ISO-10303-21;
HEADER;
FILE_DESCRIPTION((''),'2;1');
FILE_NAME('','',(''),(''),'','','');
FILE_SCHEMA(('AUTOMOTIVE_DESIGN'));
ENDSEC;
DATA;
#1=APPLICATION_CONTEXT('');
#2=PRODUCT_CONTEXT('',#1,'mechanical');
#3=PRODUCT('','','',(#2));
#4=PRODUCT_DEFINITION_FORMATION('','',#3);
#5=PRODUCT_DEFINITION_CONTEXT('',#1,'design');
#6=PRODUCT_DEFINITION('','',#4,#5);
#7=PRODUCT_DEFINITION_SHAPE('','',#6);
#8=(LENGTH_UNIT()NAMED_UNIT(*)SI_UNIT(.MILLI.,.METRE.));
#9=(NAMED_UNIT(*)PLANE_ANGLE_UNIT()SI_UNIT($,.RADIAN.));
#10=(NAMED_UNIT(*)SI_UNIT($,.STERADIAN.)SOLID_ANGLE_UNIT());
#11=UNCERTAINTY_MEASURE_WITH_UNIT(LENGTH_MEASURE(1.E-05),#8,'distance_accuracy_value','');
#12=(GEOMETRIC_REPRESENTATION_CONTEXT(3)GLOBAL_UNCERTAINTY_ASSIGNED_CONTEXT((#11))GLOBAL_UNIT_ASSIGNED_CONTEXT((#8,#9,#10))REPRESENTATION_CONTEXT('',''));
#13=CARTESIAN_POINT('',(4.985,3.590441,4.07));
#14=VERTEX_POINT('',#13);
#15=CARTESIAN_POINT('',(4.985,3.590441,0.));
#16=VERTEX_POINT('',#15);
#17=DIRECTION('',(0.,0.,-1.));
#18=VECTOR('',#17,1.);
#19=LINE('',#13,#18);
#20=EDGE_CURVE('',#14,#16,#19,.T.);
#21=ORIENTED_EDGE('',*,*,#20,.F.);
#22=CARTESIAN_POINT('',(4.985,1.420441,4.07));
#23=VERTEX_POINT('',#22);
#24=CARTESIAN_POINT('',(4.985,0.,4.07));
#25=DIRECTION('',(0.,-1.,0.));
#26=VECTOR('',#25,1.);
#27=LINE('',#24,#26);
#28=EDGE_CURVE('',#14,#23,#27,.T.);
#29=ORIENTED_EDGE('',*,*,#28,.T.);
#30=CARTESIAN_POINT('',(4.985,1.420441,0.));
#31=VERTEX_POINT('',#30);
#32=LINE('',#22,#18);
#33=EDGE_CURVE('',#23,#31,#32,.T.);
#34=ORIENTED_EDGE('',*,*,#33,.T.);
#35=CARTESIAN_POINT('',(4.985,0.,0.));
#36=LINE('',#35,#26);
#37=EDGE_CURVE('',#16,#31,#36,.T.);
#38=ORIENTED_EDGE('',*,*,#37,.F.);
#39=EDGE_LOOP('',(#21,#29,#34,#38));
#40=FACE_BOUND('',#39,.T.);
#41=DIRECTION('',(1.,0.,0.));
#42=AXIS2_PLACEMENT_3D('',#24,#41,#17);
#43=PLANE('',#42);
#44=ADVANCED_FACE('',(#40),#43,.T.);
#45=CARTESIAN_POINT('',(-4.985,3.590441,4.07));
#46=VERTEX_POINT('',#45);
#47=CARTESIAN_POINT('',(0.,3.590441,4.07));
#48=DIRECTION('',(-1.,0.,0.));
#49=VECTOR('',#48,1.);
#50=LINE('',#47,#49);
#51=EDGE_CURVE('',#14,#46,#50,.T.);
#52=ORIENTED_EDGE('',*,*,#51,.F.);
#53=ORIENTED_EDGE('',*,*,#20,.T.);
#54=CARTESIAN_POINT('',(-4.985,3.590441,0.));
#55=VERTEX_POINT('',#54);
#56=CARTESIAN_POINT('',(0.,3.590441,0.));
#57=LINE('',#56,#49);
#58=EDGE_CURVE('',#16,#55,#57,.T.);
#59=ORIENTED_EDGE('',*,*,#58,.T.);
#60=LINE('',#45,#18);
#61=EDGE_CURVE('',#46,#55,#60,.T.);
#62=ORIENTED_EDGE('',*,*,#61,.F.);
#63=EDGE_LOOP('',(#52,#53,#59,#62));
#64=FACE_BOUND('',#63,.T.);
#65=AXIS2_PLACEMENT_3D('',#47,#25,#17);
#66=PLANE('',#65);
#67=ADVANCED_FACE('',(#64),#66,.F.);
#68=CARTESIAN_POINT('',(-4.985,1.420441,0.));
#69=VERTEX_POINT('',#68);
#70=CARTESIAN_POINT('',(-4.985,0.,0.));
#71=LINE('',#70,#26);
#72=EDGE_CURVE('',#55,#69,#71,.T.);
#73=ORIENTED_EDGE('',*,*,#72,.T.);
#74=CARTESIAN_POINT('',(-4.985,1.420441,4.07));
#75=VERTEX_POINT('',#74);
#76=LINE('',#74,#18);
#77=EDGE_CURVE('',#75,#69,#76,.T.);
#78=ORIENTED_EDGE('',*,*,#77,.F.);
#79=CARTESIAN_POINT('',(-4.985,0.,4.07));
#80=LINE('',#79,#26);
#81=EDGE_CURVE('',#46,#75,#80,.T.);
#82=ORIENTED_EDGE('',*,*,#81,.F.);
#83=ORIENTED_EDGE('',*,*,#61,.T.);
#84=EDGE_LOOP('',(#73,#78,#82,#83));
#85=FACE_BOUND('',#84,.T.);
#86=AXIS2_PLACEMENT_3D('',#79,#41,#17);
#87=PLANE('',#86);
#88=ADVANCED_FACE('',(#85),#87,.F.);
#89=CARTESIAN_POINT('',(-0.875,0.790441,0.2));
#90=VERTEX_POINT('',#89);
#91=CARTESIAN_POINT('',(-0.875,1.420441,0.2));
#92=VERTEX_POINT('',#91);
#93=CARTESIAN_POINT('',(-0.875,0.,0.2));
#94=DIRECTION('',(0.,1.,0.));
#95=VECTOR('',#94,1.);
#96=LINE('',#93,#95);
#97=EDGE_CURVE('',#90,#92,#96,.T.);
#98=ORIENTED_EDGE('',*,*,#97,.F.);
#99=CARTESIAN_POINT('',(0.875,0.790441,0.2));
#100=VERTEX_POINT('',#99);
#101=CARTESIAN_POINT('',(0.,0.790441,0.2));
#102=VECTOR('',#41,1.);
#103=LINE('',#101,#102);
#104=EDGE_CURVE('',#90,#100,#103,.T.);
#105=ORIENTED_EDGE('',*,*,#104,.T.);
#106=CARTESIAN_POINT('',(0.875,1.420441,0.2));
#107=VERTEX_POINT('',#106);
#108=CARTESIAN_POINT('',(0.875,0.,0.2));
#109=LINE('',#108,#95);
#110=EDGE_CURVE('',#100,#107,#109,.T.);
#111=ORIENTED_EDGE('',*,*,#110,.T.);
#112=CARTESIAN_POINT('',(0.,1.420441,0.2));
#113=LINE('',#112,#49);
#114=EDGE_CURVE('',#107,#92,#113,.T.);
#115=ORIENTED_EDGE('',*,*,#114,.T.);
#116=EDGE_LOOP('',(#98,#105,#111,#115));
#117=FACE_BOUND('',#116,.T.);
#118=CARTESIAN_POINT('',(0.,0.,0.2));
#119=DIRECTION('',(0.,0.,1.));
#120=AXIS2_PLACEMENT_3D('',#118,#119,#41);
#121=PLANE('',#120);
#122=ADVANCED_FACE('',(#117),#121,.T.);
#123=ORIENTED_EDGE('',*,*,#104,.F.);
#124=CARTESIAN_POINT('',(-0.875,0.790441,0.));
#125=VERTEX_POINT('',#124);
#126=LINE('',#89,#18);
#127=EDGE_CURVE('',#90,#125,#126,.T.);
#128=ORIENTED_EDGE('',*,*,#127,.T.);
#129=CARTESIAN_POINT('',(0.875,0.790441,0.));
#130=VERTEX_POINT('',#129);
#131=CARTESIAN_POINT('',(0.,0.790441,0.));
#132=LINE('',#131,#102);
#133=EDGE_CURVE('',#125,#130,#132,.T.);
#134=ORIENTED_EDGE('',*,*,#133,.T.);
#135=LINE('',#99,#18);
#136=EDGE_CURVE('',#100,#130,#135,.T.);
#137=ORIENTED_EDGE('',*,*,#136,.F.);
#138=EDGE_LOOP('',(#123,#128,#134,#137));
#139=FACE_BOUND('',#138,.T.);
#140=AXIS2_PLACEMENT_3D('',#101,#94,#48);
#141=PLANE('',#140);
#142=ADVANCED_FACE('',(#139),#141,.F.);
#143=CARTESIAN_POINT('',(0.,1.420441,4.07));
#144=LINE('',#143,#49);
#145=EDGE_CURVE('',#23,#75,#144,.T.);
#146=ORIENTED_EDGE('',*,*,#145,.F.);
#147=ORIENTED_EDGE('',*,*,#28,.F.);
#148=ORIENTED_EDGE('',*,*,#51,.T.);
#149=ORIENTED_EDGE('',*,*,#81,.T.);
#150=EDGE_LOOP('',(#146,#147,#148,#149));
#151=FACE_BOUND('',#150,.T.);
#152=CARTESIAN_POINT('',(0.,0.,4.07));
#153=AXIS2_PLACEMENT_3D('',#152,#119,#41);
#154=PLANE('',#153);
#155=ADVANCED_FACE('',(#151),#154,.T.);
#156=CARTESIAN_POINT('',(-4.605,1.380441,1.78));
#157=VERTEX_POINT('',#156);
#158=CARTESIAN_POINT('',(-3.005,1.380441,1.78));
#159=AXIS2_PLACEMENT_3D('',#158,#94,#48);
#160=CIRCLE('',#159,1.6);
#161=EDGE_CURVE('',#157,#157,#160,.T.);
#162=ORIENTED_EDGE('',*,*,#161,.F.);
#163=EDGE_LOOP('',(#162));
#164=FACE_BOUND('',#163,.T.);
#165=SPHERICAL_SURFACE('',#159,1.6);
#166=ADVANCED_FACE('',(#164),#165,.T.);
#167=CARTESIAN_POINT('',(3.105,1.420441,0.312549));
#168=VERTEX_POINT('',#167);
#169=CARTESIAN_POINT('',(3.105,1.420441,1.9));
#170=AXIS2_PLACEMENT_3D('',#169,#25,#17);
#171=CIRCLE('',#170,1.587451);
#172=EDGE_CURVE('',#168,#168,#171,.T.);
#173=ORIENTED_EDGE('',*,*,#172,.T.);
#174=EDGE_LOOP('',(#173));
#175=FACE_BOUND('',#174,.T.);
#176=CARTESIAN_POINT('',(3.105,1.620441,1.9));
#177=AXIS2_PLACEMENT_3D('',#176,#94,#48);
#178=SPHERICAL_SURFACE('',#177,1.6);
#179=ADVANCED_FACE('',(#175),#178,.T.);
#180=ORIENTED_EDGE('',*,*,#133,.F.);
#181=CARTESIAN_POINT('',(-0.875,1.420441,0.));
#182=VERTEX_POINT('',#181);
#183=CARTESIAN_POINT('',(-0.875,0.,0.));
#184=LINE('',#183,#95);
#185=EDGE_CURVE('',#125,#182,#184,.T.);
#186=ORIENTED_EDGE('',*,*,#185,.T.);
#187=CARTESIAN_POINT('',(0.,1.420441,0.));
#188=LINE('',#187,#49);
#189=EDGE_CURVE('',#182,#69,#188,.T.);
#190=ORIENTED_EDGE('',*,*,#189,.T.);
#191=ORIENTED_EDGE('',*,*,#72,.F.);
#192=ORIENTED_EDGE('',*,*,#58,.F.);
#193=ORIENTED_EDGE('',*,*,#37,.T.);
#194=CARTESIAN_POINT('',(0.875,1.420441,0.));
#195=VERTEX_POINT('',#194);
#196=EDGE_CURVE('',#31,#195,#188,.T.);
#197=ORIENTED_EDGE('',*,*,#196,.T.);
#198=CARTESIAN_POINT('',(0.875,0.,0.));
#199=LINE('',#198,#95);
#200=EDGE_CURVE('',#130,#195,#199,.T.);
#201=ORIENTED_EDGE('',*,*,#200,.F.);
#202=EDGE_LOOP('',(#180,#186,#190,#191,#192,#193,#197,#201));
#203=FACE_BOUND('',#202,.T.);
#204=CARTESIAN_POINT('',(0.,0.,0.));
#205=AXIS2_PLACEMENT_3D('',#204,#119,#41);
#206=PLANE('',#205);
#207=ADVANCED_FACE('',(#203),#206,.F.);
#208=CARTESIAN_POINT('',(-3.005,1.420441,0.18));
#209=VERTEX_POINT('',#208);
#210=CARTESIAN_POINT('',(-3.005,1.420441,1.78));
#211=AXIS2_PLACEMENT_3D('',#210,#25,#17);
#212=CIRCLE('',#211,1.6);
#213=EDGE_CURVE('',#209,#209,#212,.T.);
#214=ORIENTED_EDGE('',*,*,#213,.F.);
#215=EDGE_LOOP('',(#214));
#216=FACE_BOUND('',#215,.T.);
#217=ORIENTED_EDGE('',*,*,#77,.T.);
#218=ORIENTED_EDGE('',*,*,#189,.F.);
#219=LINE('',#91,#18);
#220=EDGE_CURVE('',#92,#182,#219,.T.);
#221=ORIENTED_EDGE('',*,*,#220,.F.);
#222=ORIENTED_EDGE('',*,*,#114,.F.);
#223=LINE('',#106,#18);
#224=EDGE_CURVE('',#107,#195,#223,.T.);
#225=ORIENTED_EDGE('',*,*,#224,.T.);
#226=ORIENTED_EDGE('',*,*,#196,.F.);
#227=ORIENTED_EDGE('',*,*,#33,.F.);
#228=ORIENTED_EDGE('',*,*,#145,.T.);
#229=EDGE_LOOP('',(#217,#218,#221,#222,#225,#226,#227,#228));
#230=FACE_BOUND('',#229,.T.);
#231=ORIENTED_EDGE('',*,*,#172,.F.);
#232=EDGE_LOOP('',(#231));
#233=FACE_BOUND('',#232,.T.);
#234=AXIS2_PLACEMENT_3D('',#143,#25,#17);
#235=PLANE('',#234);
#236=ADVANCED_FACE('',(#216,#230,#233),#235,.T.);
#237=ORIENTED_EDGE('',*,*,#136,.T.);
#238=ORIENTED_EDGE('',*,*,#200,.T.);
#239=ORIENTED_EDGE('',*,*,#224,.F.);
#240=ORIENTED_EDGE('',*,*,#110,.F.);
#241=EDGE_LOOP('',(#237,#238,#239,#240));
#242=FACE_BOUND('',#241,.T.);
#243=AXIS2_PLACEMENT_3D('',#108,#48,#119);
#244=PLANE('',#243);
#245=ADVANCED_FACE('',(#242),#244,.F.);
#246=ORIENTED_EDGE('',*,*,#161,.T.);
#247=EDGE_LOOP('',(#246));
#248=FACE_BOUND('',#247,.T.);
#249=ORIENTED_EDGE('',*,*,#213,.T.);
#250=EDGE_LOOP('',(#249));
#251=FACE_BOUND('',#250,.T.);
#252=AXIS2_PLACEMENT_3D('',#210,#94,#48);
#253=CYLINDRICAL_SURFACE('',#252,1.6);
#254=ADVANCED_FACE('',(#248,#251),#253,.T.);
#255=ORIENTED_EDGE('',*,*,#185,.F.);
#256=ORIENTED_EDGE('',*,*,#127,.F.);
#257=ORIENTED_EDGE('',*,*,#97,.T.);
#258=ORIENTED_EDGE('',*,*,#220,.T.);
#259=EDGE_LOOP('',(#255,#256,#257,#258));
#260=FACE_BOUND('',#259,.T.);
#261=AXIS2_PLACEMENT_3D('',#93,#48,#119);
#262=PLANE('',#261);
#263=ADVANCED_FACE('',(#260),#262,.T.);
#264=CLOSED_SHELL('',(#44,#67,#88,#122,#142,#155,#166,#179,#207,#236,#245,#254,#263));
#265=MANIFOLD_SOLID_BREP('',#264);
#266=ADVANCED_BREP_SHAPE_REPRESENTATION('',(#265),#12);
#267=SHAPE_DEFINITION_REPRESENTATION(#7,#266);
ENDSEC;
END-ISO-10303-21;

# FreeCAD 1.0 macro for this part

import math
import FreeCAD as App
import Part
import Sketcher
from FreeCAD import Vector
Q = App.Units.Quantity

doc = App.newDocument("Part")
params = doc.addObject("Spreadsheet::Sheet", "Params")
for row, (alias, value) in enumerate([
    ("sketch1_width", "9.97 mm"),
    ("sketch1_height", "2.17 mm"),
    ("pad1_length", "4.07 mm"),
    ("sketch2_width", "1.75 mm"),
    ("sketch2_height", "0.63 mm"),
    ("pad2_length", "0.2 mm"),
    ("sketch3_radius", "1.6 mm"),
    ("sketch3_width", "1.6 mm"),
    ("sketch3_height", "0.04 mm"),
    ("revolution_angle", "360 deg"),
    ("sketch4_radius", "1.6 mm"),
    ("revolution2_angle", "360 deg"),
], start=1):
    params.set(f"A{row}", alias)
    params.set(f"B{row}", "=" + value)
    params.setAlias(f"B{row}", alias)

body = doc.addObject("PartDesign::Body", "Body")

# Sketch on XY plane
sketch1 = body.newObject("Sketcher::SketchObject", "Sketch")
sketch1.AttachmentSupport = (doc.getObject("XY_Plane"), [""])
sketch1.MapMode = "FlatFace"
sketch1.addGeometry([
    Part.LineSegment(Vector(-4.985, 3.590441, 0), Vector(-4.985, 1.420441, 0)),
    Part.LineSegment(Vector(-4.985, 1.420441, 0), Vector(4.985, 1.420441, 0)),
    Part.LineSegment(Vector(4.985, 1.420441, 0), Vector(4.985, 3.590441, 0)),
    Part.LineSegment(Vector(4.985, 3.590441, 0), Vector(-4.985, 3.590441, 0)),
], False)
sketch1.addConstraint([
    Sketcher.Constraint("Coincident", 0, 2, 1, 1),
    Sketcher.Constraint("Coincident", 1, 2, 2, 1),
    Sketcher.Constraint("Coincident", 2, 2, 3, 1),
    Sketcher.Constraint("Coincident", 3, 2, 0, 1),
    Sketcher.Constraint("Vertical", 0),
    Sketcher.Constraint("Horizontal", 1),
    Sketcher.Constraint("Vertical", 2),
    Sketcher.Constraint("Horizontal", 3),
    Sketcher.Constraint("DistanceX", 1, 1, 1, 2, Q("9.97 mm")),
    Sketcher.Constraint("DistanceY", 0, 2, 0, 1, Q("2.17 mm")),
    Sketcher.Constraint("DistanceX", 0, 2, -1, 1, Q("4.985 mm")),
    Sketcher.Constraint("DistanceY", -1, 1, 0, 2, Q("1.420441 mm")),
])
sketch1.setExpression("Constraints[8]", "Params.sketch1_width")
sketch1.setExpression("Constraints[9]", "Params.sketch1_height")
pad1 = body.newObject("PartDesign::Pad", "Pad")
pad1.Profile = sketch1
pad1.setExpression("Length", "Params.pad1_length")

# Sketch on XY plane
sketch2 = body.newObject("Sketcher::SketchObject", "Sketch001")
sketch2.AttachmentSupport = (doc.getObject("XY_Plane"), [""])
sketch2.MapMode = "FlatFace"
sketch2.addGeometry([
    Part.LineSegment(Vector(-0.875, 1.420441, 0), Vector(-0.875, 0.790441, 0)),
    Part.LineSegment(Vector(-0.875, 0.790441, 0), Vector(0.875, 0.790441, 0)),
    Part.LineSegment(Vector(0.875, 0.790441, 0), Vector(0.875, 1.420441, 0)),
    Part.LineSegment(Vector(0.875, 1.420441, 0), Vector(-0.875, 1.420441, 0)),
], False)
sketch2.addConstraint([
    Sketcher.Constraint("Coincident", 0, 2, 1, 1),
    Sketcher.Constraint("Coincident", 1, 2, 2, 1),
    Sketcher.Constraint("Coincident", 2, 2, 3, 1),
    Sketcher.Constraint("Coincident", 3, 2, 0, 1),
    Sketcher.Constraint("Vertical", 0),
    Sketcher.Constraint("Horizontal", 1),
    Sketcher.Constraint("Vertical", 2),
    Sketcher.Constraint("Horizontal", 3),
    Sketcher.Constraint("DistanceX", 1, 1, 1, 2, Q("1.75 mm")),
    Sketcher.Constraint("DistanceY", 0, 2, 0, 1, Q("0.63 mm")),
    Sketcher.Constraint("DistanceX", 0, 2, -1, 1, Q("0.875 mm")),
    Sketcher.Constraint("DistanceY", -1, 1, 0, 2, Q("0.790441 mm")),
])
sketch2.setExpression("Constraints[8]", "Params.sketch2_width")
sketch2.setExpression("Constraints[9]", "Params.sketch2_height")
pad2 = body.newObject("PartDesign::Pad", "Pad001")
pad2.Profile = sketch2
pad2.setExpression("Length", "Params.pad2_length")

# Sketch on XY plane
sketch3 = body.newObject("Sketcher::SketchObject", "Sketch002")
sketch3.AttachmentSupport = (doc.getObject("XY_Plane"), [""])
sketch3.MapMode = "FlatFace"
sketch3.AttachmentOffset = App.Placement(Vector(0, 0, 1.78), App.Rotation())
sketch3.addGeometry([
    Part.LineSegment(Vector(-3.005, 1.420441, 0), Vector(-4.605, 1.420441, 0)),
    Part.LineSegment(Vector(-4.605, 1.420441, 0), Vector(-4.605, 1.380441, 0)),
    Part.ArcOfCircle(Part.Circle(Vector(-3.005, 1.380441, 0), Vector(0, 0, 1), 1.6), math.radians(180), math.radians(270)),
    Part.LineSegment(Vector(-3.005, -0.219559, 0), Vector(-3.005, 1.420441, 0)),
], False)
sketch3.addGeometry(Part.LineSegment(Vector(-3.005, 1.420441, 0), Vector(-3.005, -0.219559, 0)), True)  # axis
sketch3.addConstraint([
    Sketcher.Constraint("Coincident", 0, 2, 1, 1),
    Sketcher.Constraint("Tangent", 1, 2, 2, 1),
    Sketcher.Constraint("Coincident", 2, 2, 3, 1),
    Sketcher.Constraint("Coincident", 3, 2, 0, 1),
    Sketcher.Constraint("Horizontal", 0),
    Sketcher.Constraint("Vertical", 1),
    Sketcher.Constraint("Vertical", 3),
    Sketcher.Constraint("Vertical", 4),
    Sketcher.Constraint("Coincident", 4, 1, 3, 2),
    Sketcher.Constraint("Equal", 3, 4),
    Sketcher.Constraint("Radius", 2, Q("1.6 mm")),
    Sketcher.Constraint("DistanceX", 0, 2, 0, 1, Q("1.6 mm")),
    Sketcher.Constraint("DistanceY", 1, 2, 1, 1, Q("0.04 mm")),
    Sketcher.Constraint("DistanceX", 2, 3, -1, 1, Q("3.005 mm")),
    Sketcher.Constraint("DistanceY", -1, 1, 2, 3, Q("1.380441 mm")),
])
sketch3.setExpression("Constraints[10]", "Params.sketch3_radius")
sketch3.setExpression("Constraints[11]", "Params.sketch3_width")
sketch3.setExpression("Constraints[12]", "Params.sketch3_height")
revolution = body.newObject("PartDesign::Revolution", "Revolution")
revolution.Profile = sketch3
revolution.ReferenceAxis = (sketch3, ["Axis0"])
revolution.setExpression("Angle", "Params.revolution_angle")

# Sketch on XY plane
sketch4 = body.newObject("Sketcher::SketchObject", "Sketch003")
sketch4.AttachmentSupport = (doc.getObject("XY_Plane"), [""])
sketch4.MapMode = "FlatFace"
sketch4.AttachmentOffset = App.Placement(Vector(0, 0, 1.9), App.Rotation())
sketch4.addGeometry([
    Part.ArcOfCircle(Part.Circle(Vector(3.105, 1.620441, 0), Vector(0, 0, 1), 1.6), math.radians(-90), math.radians(0)),
    Part.LineSegment(Vector(4.705, 1.620441, 0), Vector(3.105, 1.620441, 0)),
    Part.LineSegment(Vector(3.105, 1.620441, 0), Vector(3.105, 0.020441, 0)),
], False)
sketch4.addGeometry(Part.LineSegment(Vector(3.105, 1.620441, 0), Vector(3.105, 0.020441, 0)), True)  # axis
sketch4.addConstraint([
    Sketcher.Constraint("Coincident", 0, 2, 1, 1),
    Sketcher.Constraint("Coincident", 1, 2, 2, 1),
    Sketcher.Constraint("Coincident", 2, 2, 0, 1),
    Sketcher.Constraint("Horizontal", 1),
    Sketcher.Constraint("Vertical", 2),
    Sketcher.Constraint("Vertical", 3),
    Sketcher.Constraint("Coincident", 1, 2, 0, 3),
    Sketcher.Constraint("Coincident", 3, 1, 0, 3),
    Sketcher.Constraint("Equal", 2, 3),
    Sketcher.Constraint("Radius", 0, Q("1.6 mm")),
    Sketcher.Constraint("DistanceX", -1, 1, 0, 3, Q("3.105 mm")),
    Sketcher.Constraint("DistanceY", -1, 1, 0, 3, Q("1.620441 mm")),
])
sketch4.setExpression("Constraints[9]", "Params.sketch4_radius")
revolution2 = body.newObject("PartDesign::Revolution", "Revolution001")
revolution2.Profile = sketch4
revolution2.ReferenceAxis = (sketch4, ["Axis0"])
revolution2.setExpression("Angle", "Params.revolution2_angle")

doc.recompute()
